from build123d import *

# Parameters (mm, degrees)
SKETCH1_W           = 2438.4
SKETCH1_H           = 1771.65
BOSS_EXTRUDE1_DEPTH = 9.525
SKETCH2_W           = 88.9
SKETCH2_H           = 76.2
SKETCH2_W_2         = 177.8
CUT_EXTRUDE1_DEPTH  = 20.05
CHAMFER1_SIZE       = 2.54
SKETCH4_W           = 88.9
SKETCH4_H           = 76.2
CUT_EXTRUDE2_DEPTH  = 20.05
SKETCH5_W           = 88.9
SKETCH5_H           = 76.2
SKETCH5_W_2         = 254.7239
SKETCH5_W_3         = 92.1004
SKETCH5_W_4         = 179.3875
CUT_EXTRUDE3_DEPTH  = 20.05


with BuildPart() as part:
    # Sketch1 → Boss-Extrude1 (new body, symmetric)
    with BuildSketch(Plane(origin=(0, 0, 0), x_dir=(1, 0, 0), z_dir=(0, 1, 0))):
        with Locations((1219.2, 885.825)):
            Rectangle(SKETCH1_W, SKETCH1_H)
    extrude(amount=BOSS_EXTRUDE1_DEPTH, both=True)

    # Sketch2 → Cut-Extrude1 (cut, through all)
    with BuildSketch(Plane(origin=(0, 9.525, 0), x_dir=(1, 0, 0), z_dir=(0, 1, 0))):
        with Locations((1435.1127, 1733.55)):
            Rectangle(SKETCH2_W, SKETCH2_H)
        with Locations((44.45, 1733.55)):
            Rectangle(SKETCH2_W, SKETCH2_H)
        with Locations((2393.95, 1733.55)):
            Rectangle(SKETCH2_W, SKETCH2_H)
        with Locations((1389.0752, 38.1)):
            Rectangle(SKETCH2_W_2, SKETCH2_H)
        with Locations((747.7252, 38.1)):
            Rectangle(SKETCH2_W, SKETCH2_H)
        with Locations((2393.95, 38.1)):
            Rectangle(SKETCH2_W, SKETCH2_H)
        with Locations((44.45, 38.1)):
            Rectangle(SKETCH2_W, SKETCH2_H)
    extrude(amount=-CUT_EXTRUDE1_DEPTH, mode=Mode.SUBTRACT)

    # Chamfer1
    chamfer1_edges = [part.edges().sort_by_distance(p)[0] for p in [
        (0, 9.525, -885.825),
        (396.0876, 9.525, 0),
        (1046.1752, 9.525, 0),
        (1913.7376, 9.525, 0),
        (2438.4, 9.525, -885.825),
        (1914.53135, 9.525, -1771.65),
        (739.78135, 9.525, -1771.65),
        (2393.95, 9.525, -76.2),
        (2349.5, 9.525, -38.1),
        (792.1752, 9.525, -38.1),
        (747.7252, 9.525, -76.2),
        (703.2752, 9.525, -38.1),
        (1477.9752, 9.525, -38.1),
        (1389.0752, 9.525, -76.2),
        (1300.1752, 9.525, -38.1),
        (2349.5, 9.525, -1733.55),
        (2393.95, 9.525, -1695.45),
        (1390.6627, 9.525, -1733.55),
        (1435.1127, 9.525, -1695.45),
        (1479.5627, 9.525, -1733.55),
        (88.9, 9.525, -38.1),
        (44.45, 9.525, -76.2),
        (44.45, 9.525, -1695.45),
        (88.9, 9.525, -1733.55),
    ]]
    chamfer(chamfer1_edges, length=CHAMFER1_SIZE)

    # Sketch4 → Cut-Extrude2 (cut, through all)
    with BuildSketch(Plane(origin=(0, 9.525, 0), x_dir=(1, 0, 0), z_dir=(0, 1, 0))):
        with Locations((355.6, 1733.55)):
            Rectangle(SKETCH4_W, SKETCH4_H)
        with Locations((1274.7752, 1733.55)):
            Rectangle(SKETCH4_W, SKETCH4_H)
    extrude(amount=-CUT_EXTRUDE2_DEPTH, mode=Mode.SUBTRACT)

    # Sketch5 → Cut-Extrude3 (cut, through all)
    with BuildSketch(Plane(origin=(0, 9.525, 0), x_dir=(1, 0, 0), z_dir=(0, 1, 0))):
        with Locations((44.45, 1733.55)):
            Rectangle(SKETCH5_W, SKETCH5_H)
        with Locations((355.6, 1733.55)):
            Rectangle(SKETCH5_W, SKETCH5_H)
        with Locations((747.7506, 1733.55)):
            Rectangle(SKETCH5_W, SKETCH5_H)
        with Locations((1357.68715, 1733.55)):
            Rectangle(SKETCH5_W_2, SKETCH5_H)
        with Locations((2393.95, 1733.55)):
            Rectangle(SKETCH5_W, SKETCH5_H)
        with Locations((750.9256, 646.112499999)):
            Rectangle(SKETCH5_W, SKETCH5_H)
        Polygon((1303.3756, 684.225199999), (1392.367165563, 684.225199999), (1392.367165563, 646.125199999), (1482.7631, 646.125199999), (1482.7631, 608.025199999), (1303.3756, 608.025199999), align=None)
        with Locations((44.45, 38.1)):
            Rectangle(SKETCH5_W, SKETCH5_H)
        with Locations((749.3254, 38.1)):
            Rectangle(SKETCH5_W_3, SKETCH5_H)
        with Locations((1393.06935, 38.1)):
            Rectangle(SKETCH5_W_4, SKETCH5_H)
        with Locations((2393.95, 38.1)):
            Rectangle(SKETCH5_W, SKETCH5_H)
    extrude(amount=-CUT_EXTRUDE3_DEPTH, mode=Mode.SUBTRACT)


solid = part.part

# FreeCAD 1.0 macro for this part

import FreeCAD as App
import Part
import Sketcher
Q = App.Units.Quantity


def edges_at(feature, points):
    """Names of the edges that pass closest to the given points."""
    edges = feature.Shape.Edges
    near = lambda p: min(range(len(edges)), key=lambda i: edges[i].distToShape(Part.Vertex(*p))[0])
    return sorted({f"Edge{near(p) + 1}" for p in points})


def add_polygon(sketch, points):
    """Adds a closed chain of lines whose ends are joined by coincident constraints."""
    first, n = sketch.GeometryCount, len(points)
    for a, b in zip(points, points[1:] + points[:1]):
        sketch.addGeometry(Part.LineSegment(App.Vector(*a, 0), App.Vector(*b, 0)), False)
    for i in range(n):
        sketch.addConstraint(Sketcher.Constraint("Coincident", first + i, 2, first + (i + 1) % n, 1))

doc = App.newDocument("Part")
body = doc.addObject("PartDesign::Body", "Body")

sketch1 = body.newObject("Sketcher::SketchObject", "Sketch")
sketch1.AttachmentSupport = (doc.getObject("XZ_Plane"), [""])
sketch1.MapMode = "FlatFace"
add_polygon(sketch1, [(0, -1772), (0, 0), (2438, 0), (2438, -1772)])
sketch1.addConstraint(Sketcher.Constraint("Vertical", 0))
sketch1.addConstraint(Sketcher.Constraint("Horizontal", 1))
sketch1.addConstraint(Sketcher.Constraint("Vertical", 2))
sketch1.addConstraint(Sketcher.Constraint("Horizontal", 3))
sketch1.addConstraint(Sketcher.Constraint("Coincident", 0, 2, -1, 1))
sketch1.addConstraint(Sketcher.Constraint("DistanceX", 1, 1, 1, 2, Q("96 in")))
sketch1.addConstraint(Sketcher.Constraint("DistanceY", 0, 1, 0, 2, Q("69.75 in")))
pad1 = body.newObject("PartDesign::Pad", "Pad")
pad1.Profile = sketch1
pad1.Length = Q("0.75 in")
pad1.Midplane = True

sketch2 = body.newObject("Sketcher::SketchObject", "Sketch001")
sketch2.AttachmentSupport = (doc.getObject("XZ_Plane"), [""])
sketch2.MapMode = "FlatFace"
sketch2.AttachmentOffset = App.Placement(App.Vector(0, 0, -0.375 * 25.4), App.Rotation())
add_polygon(sketch2, [(1391, -1772), (1391, -1695), (1480, -1695), (1480, -1772)])
add_polygon(sketch2, [(0, -1772), (0, -1695), (89, -1695), (89, -1772)])
add_polygon(sketch2, [(2350, -1772), (2350, -1695), (2438, -1695), (2438, -1772)])
add_polygon(sketch2, [(1300, -76), (1300, 0), (1478, 0), (1478, -76)])
add_polygon(sketch2, [(703, -76), (703, 0), (792, 0), (792, -76)])
add_polygon(sketch2, [(2350, -76), (2350, 0), (2438, 0), (2438, -76)])
add_polygon(sketch2, [(0, -76), (0, 0), (89, 0), (89, -76)])
sketch2.addConstraint(Sketcher.Constraint("Vertical", 0))
sketch2.addConstraint(Sketcher.Constraint("Horizontal", 1))
sketch2.addConstraint(Sketcher.Constraint("Vertical", 2))
sketch2.addConstraint(Sketcher.Constraint("Horizontal", 3))
sketch2.addConstraint(Sketcher.Constraint("Vertical", 4))
sketch2.addConstraint(Sketcher.Constraint("Horizontal", 5))
sketch2.addConstraint(Sketcher.Constraint("Vertical", 6))
sketch2.addConstraint(Sketcher.Constraint("Horizontal", 7))
sketch2.addConstraint(Sketcher.Constraint("Vertical", 8))
sketch2.addConstraint(Sketcher.Constraint("Horizontal", 9))
sketch2.addConstraint(Sketcher.Constraint("Vertical", 10))
sketch2.addConstraint(Sketcher.Constraint("Horizontal", 11))
sketch2.addConstraint(Sketcher.Constraint("Vertical", 12))
sketch2.addConstraint(Sketcher.Constraint("Horizontal", 13))
sketch2.addConstraint(Sketcher.Constraint("Vertical", 14))
sketch2.addConstraint(Sketcher.Constraint("Horizontal", 15))
sketch2.addConstraint(Sketcher.Constraint("Vertical", 16))
sketch2.addConstraint(Sketcher.Constraint("Horizontal", 17))
sketch2.addConstraint(Sketcher.Constraint("Vertical", 18))
sketch2.addConstraint(Sketcher.Constraint("Horizontal", 19))
sketch2.addConstraint(Sketcher.Constraint("Vertical", 20))
sketch2.addConstraint(Sketcher.Constraint("Horizontal", 21))
sketch2.addConstraint(Sketcher.Constraint("Vertical", 22))
sketch2.addConstraint(Sketcher.Constraint("Horizontal", 23))
sketch2.addConstraint(Sketcher.Constraint("Vertical", 24))
sketch2.addConstraint(Sketcher.Constraint("Horizontal", 25))
sketch2.addConstraint(Sketcher.Constraint("Vertical", 26))
sketch2.addConstraint(Sketcher.Constraint("Horizontal", 27))
sketch2.addConstraint(Sketcher.Constraint("Coincident", 24, 2, -1, 1))
sketch2.addConstraint(Sketcher.Constraint("PointOnObject", 4, 2, -2))
sketch2.addConstraint(Sketcher.Constraint("PointOnObject", 12, 2, -1))
sketch2.addConstraint(Sketcher.Constraint("PointOnObject", 16, 2, -1))
sketch2.addConstraint(Sketcher.Constraint("PointOnObject", 20, 2, -1))
sketch2.addConstraint(Sketcher.Constraint("Horizontal", 1, 2, 4, 2))
sketch2.addConstraint(Sketcher.Constraint("Horizontal", 3, 2, 6, 2))
sketch2.addConstraint(Sketcher.Constraint("Horizontal", 5, 2, 8, 2))
sketch2.addConstraint(Sketcher.Constraint("Horizontal", 7, 2, 10, 2))
sketch2.addConstraint(Sketcher.Constraint("Horizontal", 15, 2, 18, 2))
sketch2.addConstraint(Sketcher.Constraint("Horizontal", 19, 2, 22, 2))
sketch2.addConstraint(Sketcher.Constraint("Horizontal", 23, 2, 26, 2))
sketch2.addConstraint(Sketcher.Constraint("Vertical", 11, 2, 20, 2))
sketch2.addConstraint(Sketcher.Constraint("Vertical", 10, 2, 21, 2))
sketch2.addConstraint(Sketcher.Constraint("Vertical", 6, 2, 25, 2))
sketch2.addConstraint(Sketcher.Constraint("Equal", 3, 5))
sketch2.addConstraint(Sketcher.Constraint("Equal", 7, 9))
sketch2.addConstraint(Sketcher.Constraint("Equal", 11, 17))
sketch2.addConstraint(Sketcher.Constraint("Equal", 10, 12))
sketch2.addConstraint(Sketcher.Constraint("DistanceX", 13, 1, 13, 2, Q("7 in")))
sketch2.addConstraint(Sketcher.Constraint("DistanceY", 0, 1, 0, 2, Q("3 in")))
sketch2.addConstraint(Sketcher.Constraint("DistanceX", 1, 1, 1, 2, Q("3.5 in")))
sketch2.addConstraint(Sketcher.Constraint("DistanceX", -1, 1, 9, 2, Q("96 in")))
sketch2.addConstraint(Sketcher.Constraint("DistanceX", 17, 2, 12, 2, Q("20 in")))
sketch2.addConstraint(Sketcher.Constraint("DistanceY", 0, 2, -1, 1, Q("66.75 in")))
sketch2.addConstraint(Sketcher.Constraint("DistanceX", -1, 1, 12, 2, Q("51.188 in")))
sketch2.addConstraint(Sketcher.Constraint("DistanceX", 12, 2, 0, 2, Q("3.5625 in")))
pocket1 = body.newObject("PartDesign::Pocket", "Pocket")
pocket1.Profile = sketch2
pocket1.Type = "ThroughAll"
pocket1.Reversed = True
doc.recompute()

chamfer = body.newObject("PartDesign::Chamfer", "Chamfer")
chamfer.Base = (pocket1, edges_at(pocket1, [
    (0, 9.525, -885.825),
    (396.088, 9.525, 0),
    (1046.175, 9.525, 0),
    (1913.738, 9.525, 0),
    (2438.4, 9.525, -885.825),
    (1914.531, 9.525, -1771.65),
    (739.781, 9.525, -1771.65),
    (2393.95, 9.525, -76.2),
    (2349.5, 9.525, -38.1),
    (792.175, 9.525, -38.1),
    (747.725, 9.525, -76.2),
    (703.275, 9.525, -38.1),
    (1477.975, 9.525, -38.1),
    (1389.075, 9.525, -76.2),
    (1300.175, 9.525, -38.1),
    (2349.5, 9.525, -1733.55),
    (2393.95, 9.525, -1695.45),
    (1390.663, 9.525, -1733.55),
    (1435.113, 9.525, -1695.45),
    (1479.563, 9.525, -1733.55),
    (88.9, 9.525, -38.1),
    (44.45, 9.525, -76.2),
    (44.45, 9.525, -1695.45),
    (88.9, 9.525, -1733.55),
]))
chamfer.Size = Q("0.1 in")

sketch3 = body.newObject("Sketcher::SketchObject", "Sketch002")
sketch3.AttachmentSupport = (doc.getObject("XZ_Plane"), [""])
sketch3.MapMode = "FlatFace"
sketch3.AttachmentOffset = App.Placement(App.Vector(0, 0, -0.375 * 25.4), App.Rotation())
add_polygon(sketch3, [(311, -1772), (311, -1695), (400, -1695), (400, -1772)])
add_polygon(sketch3, [(1230, -1772), (1230, -1695), (1319, -1695), (1319, -1772)])
sketch3.addConstraint(Sketcher.Constraint("Vertical", 0))
sketch3.addConstraint(Sketcher.Constraint("Horizontal", 1))
sketch3.addConstraint(Sketcher.Constraint("Vertical", 2))
sketch3.addConstraint(Sketcher.Constraint("Horizontal", 3))
sketch3.addConstraint(Sketcher.Constraint("Vertical", 4))
sketch3.addConstraint(Sketcher.Constraint("Horizontal", 5))
sketch3.addConstraint(Sketcher.Constraint("Vertical", 6))
sketch3.addConstraint(Sketcher.Constraint("Horizontal", 7))
sketch3.addConstraint(Sketcher.Constraint("Horizontal", 1, 2, 4, 2))
sketch3.addConstraint(Sketcher.Constraint("Horizontal", 3, 2, 6, 2))
sketch3.addConstraint(Sketcher.Constraint("Equal", 3, 5))
sketch3.addConstraint(Sketcher.Constraint("DistanceY", 0, 1, 0, 2, Q("3 in")))
sketch3.addConstraint(Sketcher.Constraint("DistanceX", 1, 1, 1, 2, Q("3.5 in")))
sketch3.addConstraint(Sketcher.Constraint("DistanceX", -1, 1, 0, 2, Q("12.25 in")))
sketch3.addConstraint(Sketcher.Constraint("DistanceY", 0, 2, -1, 1, Q("66.75 in")))
sketch3.addConstraint(Sketcher.Constraint("DistanceX", -1, 1, 4, 2, Q("48.438 in")))
pocket2 = body.newObject("PartDesign::Pocket", "Pocket001")
pocket2.Profile = sketch3
pocket2.Type = "ThroughAll"
pocket2.Reversed = True

sketch4 = body.newObject("Sketcher::SketchObject", "Sketch003")
sketch4.AttachmentSupport = (doc.getObject("XZ_Plane"), [""])
sketch4.MapMode = "FlatFace"
sketch4.AttachmentOffset = App.Placement(App.Vector(0, 0, -0.375 * 25.4), App.Rotation())
add_polygon(sketch4, [(0, -1772), (0, -1695), (89, -1695), (89, -1772)])
add_polygon(sketch4, [(311, -1772), (311, -1695), (400, -1695), (400, -1772)])
add_polygon(sketch4, [(703, -1772), (703, -1695), (792, -1695), (792, -1772)])
add_polygon(sketch4, [(1230, -1772), (1230, -1695), (1485, -1695), (1485, -1772)])
add_polygon(sketch4, [(2350, -1772), (2350, -1695), (2438, -1695), (2438, -1772)])
add_polygon(sketch4, [(706, -684), (706, -608), (795, -608), (795, -684)])
add_polygon(sketch4, [(1392, -684), (1303, -684), (1303, -608), (1483, -608), (1483, -646), (1392, -646)])
add_polygon(sketch4, [(0, -76), (0, 0), (89, 0), (89, -76)])
add_polygon(sketch4, [(703, -76), (703, 0), (795, 0), (795, -76)])
add_polygon(sketch4, [(1303, -76), (1303, 0), (1483, 0), (1483, -76)])
add_polygon(sketch4, [(2350, -76), (2350, 0), (2438, 0), (2438, -76)])
sketch4.addConstraint(Sketcher.Constraint("Vertical", 0))
sketch4.addConstraint(Sketcher.Constraint("Horizontal", 1))
sketch4.addConstraint(Sketcher.Constraint("Vertical", 2))
sketch4.addConstraint(Sketcher.Constraint("Horizontal", 3))
sketch4.addConstraint(Sketcher.Constraint("Vertical", 4))
sketch4.addConstraint(Sketcher.Constraint("Horizontal", 5))
sketch4.addConstraint(Sketcher.Constraint("Vertical", 6))
sketch4.addConstraint(Sketcher.Constraint("Horizontal", 7))
sketch4.addConstraint(Sketcher.Constraint("Vertical", 8))
sketch4.addConstraint(Sketcher.Constraint("Horizontal", 9))
sketch4.addConstraint(Sketcher.Constraint("Vertical", 10))
sketch4.addConstraint(Sketcher.Constraint("Horizontal", 11))
sketch4.addConstraint(Sketcher.Constraint("Vertical", 12))
sketch4.addConstraint(Sketcher.Constraint("Horizontal", 13))
sketch4.addConstraint(Sketcher.Constraint("Vertical", 14))
sketch4.addConstraint(Sketcher.Constraint("Horizontal", 15))
sketch4.addConstraint(Sketcher.Constraint("Vertical", 16))
sketch4.addConstraint(Sketcher.Constraint("Horizontal", 17))
sketch4.addConstraint(Sketcher.Constraint("Vertical", 18))
sketch4.addConstraint(Sketcher.Constraint("Horizontal", 19))
sketch4.addConstraint(Sketcher.Constraint("Vertical", 20))
sketch4.addConstraint(Sketcher.Constraint("Horizontal", 21))
sketch4.addConstraint(Sketcher.Constraint("Vertical", 22))
sketch4.addConstraint(Sketcher.Constraint("Horizontal", 23))
sketch4.addConstraint(Sketcher.Constraint("Horizontal", 24))
sketch4.addConstraint(Sketcher.Constraint("Vertical", 25))
sketch4.addConstraint(Sketcher.Constraint("Horizontal", 26))
sketch4.addConstraint(Sketcher.Constraint("Vertical", 27))
sketch4.addConstraint(Sketcher.Constraint("Horizontal", 28))
sketch4.addConstraint(Sketcher.Constraint("Vertical", 29))
sketch4.addConstraint(Sketcher.Constraint("Vertical", 30))
sketch4.addConstraint(Sketcher.Constraint("Horizontal", 31))
sketch4.addConstraint(Sketcher.Constraint("Vertical", 32))
sketch4.addConstraint(Sketcher.Constraint("Horizontal", 33))
sketch4.addConstraint(Sketcher.Constraint("Vertical", 34))
sketch4.addConstraint(Sketcher.Constraint("Horizontal", 35))
sketch4.addConstraint(Sketcher.Constraint("Vertical", 36))
sketch4.addConstraint(Sketcher.Constraint("Horizontal", 37))
sketch4.addConstraint(Sketcher.Constraint("Vertical", 38))
sketch4.addConstraint(Sketcher.Constraint("Horizontal", 39))
sketch4.addConstraint(Sketcher.Constraint("Vertical", 40))
sketch4.addConstraint(Sketcher.Constraint("Horizontal", 41))
sketch4.addConstraint(Sketcher.Constraint("Vertical", 42))
sketch4.addConstraint(Sketcher.Constraint("Horizontal", 43))
sketch4.addConstraint(Sketcher.Constraint("Vertical", 44))
sketch4.addConstraint(Sketcher.Constraint("Horizontal", 45))
sketch4.addConstraint(Sketcher.Constraint("Coincident", 30, 2, -1, 1))
sketch4.addConstraint(Sketcher.Constraint("PointOnObject", 0, 2, -2))
sketch4.addConstraint(Sketcher.Constraint("PointOnObject", 34, 2, -1))
sketch4.addConstraint(Sketcher.Constraint("PointOnObject", 38, 2, -1))
sketch4.addConstraint(Sketcher.Constraint("PointOnObject", 42, 2, -1))
sketch4.addConstraint(Sketcher.Constraint("Horizontal", 1, 2, 4, 2))
sketch4.addConstraint(Sketcher.Constraint("Horizontal", 3, 2, 6, 2))
sketch4.addConstraint(Sketcher.Constraint("Horizontal", 5, 2, 8, 2))
sketch4.addConstraint(Sketcher.Constraint("Horizontal", 7, 2, 10, 2))
sketch4.addConstraint(Sketcher.Constraint("Horizontal", 9, 2, 12, 2))
sketch4.addConstraint(Sketcher.Constraint("Horizontal", 11, 2, 14, 2))
sketch4.addConstraint(Sketcher.Constraint("Horizontal", 13, 2, 16, 2))
sketch4.addConstraint(Sketcher.Constraint("Horizontal", 15, 2, 18, 2))
sketch4.addConstraint(Sketcher.Constraint("Horizontal", 33, 2, 36, 2))
sketch4.addConstraint(Sketcher.Constraint("Horizontal", 37, 2, 40, 2))
sketch4.addConstraint(Sketcher.Constraint("Horizontal", 41, 2, 44, 2))
sketch4.addConstraint(Sketcher.Constraint("Vertical", 2, 2, 31, 2))
sketch4.addConstraint(Sketcher.Constraint("Vertical", 22, 2, 35, 2))
sketch4.addConstraint(Sketcher.Constraint("Vertical", 25, 2, 38, 2))
sketch4.addConstraint(Sketcher.Constraint("Vertical", 27, 2, 39, 2))
sketch4.addConstraint(Sketcher.Constraint("Vertical", 19, 2, 42, 2))
sketch4.addConstraint(Sketcher.Constraint("Vertical", 18, 2, 43, 2))
sketch4.addConstraint(Sketcher.Constraint("Equal", 3, 5))
sketch4.addConstraint(Sketcher.Constraint("Equal", 7, 9))
sketch4.addConstraint(Sketcher.Constraint("Equal", 11, 17))
sketch4.addConstraint(Sketcher.Constraint("Equal", 19, 21))
sketch4.addConstraint(Sketcher.Constraint("Equal", 18, 20))
sketch4.addConstraint(Sketcher.Constraint("Equal", 22, 25))
sketch4.addConstraint(Sketcher.Constraint("Equal", 27, 29))
sketch4.addConstraint(Sketcher.Constraint("Equal", 25, 30))
sketch4.addConstraint(Sketcher.Constraint("DistanceY", 0, 1, 0, 2, Q("3 in")))
sketch4.addConstraint(Sketcher.Constraint("DistanceX", 1, 1, 1, 2, Q("3.5 in")))
sketch4.addConstraint(Sketcher.Constraint("DistanceX", -1, 1, 17, 2, Q("96 in")))
sketch4.addConstraint(Sketcher.Constraint("DistanceX", 22, 2, 24, 2, Q("20 in")))
sketch4.addConstraint(Sketcher.Constraint("DistanceX", 26, 1, 26, 2, Q("7.0625 in")))
sketch4.addConstraint(Sketcher.Constraint("DistanceX", 35, 1, 35, 2, Q("3.626 in")))
sketch4.addConstraint(Sketcher.Constraint("DistanceY", 0, 2, -1, 1, Q("66.75 in")))
sketch4.addConstraint(Sketcher.Constraint("DistanceX", -1, 1, 4, 2, Q("12.25 in")))
sketch4.addConstraint(Sketcher.Constraint("DistanceX", 13, 1, 13, 2, Q("10.0285 in")))
sketch4.addConstraint(Sketcher.Constraint("DistanceX", -1, 1, 8, 2, Q("27.689 in")))
sketch4.addConstraint(Sketcher.Constraint("DistanceX", -1, 1, 12, 2, Q("48.438 in")))
sketch4.addConstraint(Sketcher.Constraint("DistanceX", -1, 1, 20, 2, Q("27.814 in")))
sketch4.addConstraint(Sketcher.Constraint("DistanceY", 20, 2, -1, 1, Q("23.9375 in")))
sketch4.addConstraint(Sketcher.Constraint("DistanceY", 24, 2, -1, 1, Q("26.938 in")))
sketch4.addConstraint(Sketcher.Constraint("DistanceX", 24, 2, 24, 1, 88.991566))
pocket3 = body.newObject("PartDesign::Pocket", "Pocket002")
pocket3.Profile = sketch4
pocket3.Type = "ThroughAll"
pocket3.Reversed = True

doc.recompute()
